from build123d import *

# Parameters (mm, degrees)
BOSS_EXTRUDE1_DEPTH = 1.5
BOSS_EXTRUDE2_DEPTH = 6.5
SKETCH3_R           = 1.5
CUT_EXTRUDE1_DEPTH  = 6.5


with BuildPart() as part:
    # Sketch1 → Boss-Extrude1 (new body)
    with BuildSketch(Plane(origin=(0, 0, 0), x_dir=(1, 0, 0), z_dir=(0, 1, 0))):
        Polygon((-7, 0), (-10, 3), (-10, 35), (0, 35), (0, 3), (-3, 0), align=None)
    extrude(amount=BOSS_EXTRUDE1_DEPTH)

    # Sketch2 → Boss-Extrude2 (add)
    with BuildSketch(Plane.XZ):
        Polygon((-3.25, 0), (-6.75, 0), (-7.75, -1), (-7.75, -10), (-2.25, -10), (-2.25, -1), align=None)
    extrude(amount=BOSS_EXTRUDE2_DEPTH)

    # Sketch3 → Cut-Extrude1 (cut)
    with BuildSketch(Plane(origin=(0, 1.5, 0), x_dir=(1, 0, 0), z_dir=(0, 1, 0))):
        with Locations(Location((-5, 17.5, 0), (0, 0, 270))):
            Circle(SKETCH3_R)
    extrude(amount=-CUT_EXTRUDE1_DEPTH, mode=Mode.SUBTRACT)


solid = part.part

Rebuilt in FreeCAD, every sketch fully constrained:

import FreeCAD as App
import Part
import Sketcher
from FreeCAD import Vector
Q = App.Units.Quantity

doc = App.newDocument("Part")
params = doc.addObject("Spreadsheet::Sheet", "Params")
for row, (alias, value) in enumerate([
    ("sketch1_width", "4 mm"),
    ("sketch1_width2", "10 mm"),
    ("sketch1_height", "32 mm"),
    ("pad1_length", "1.5 mm"),
    ("sketch2_height", "9 mm"),
    ("sketch2_width", "3.5 mm"),
    ("sketch2_width2", "5.5 mm"),
    ("pad2_length", "6.5 mm"),
    ("sketch3_diameter", "3 mm"),
    ("pocket1_length", "6.5 mm"),
], start=1):
    params.set(f"A{row}", alias)
    params.set(f"B{row}", "=" + value)
    params.setAlias(f"B{row}", alias)

body = doc.addObject("PartDesign::Body", "Body")

sketch1 = body.newObject("Sketcher::SketchObject", "Sketch")
sketch1.AttachmentSupport = (doc.getObject("XZ_Plane"), [""])
sketch1.MapMode = "FlatFace"
sketch1.addGeometry([
    Part.LineSegment(Vector(-10, -3, 0), Vector(-7, 0, 0)),
    Part.LineSegment(Vector(-7, 0, 0), Vector(-3, 0, 0)),
    Part.LineSegment(Vector(-3, 0, 0), Vector(0, -3, 0)),
    Part.LineSegment(Vector(0, -3, 0), Vector(0, -35, 0)),
    Part.LineSegment(Vector(0, -35, 0), Vector(-10, -35, 0)),
    Part.LineSegment(Vector(-10, -35, 0), Vector(-10, -3, 0)),
], False)
sketch1.addConstraint([
    Sketcher.Constraint("Coincident", 0, 2, 1, 1),
    Sketcher.Constraint("Coincident", 1, 2, 2, 1),
    Sketcher.Constraint("Coincident", 2, 2, 3, 1),
    Sketcher.Constraint("Coincident", 3, 2, 4, 1),
    Sketcher.Constraint("Coincident", 4, 2, 5, 1),
    Sketcher.Constraint("Coincident", 5, 2, 0, 1),
    Sketcher.Constraint("Horizontal", 1),
    Sketcher.Constraint("Vertical", 3),
    Sketcher.Constraint("Horizontal", 4),
    Sketcher.Constraint("Vertical", 5),
    Sketcher.Constraint("PointOnObject", 0, 2, -1),
    Sketcher.Constraint("PointOnObject", 2, 2, -2),
    Sketcher.Constraint("Perpendicular", 0, 2),
    Sketcher.Constraint("Horizontal", 2, 2, 5, 2),
    Sketcher.Constraint("Equal", 0, 2),
    Sketcher.Constraint("DistanceX", 1, 1, 1, 2, Q("4 mm")),
    Sketcher.Constraint("DistanceX", 4, 2, 4, 1, Q("10 mm")),
    Sketcher.Constraint("DistanceY", 3, 2, 3, 1, Q("32 mm")),
])
sketch1.setExpression("Constraints[15]", "Params.sketch1_width")
sketch1.setExpression("Constraints[16]", "Params.sketch1_width2")
sketch1.setExpression("Constraints[17]", "Params.sketch1_height")
pad1 = body.newObject("PartDesign::Pad", "Pad")
pad1.Profile = sketch1
pad1.setExpression("Length", "Params.pad1_length")
pad1.Reversed = True

sketch2 = body.newObject("Sketcher::SketchObject", "Sketch001")
sketch2.AttachmentSupport = (doc.getObject("XZ_Plane"), [""])
sketch2.MapMode = "FlatFace"
sketch2.addGeometry([
    Part.LineSegment(Vector(-3.25, 0, 0), Vector(-6.75, 0, 0)),
    Part.LineSegment(Vector(-6.75, 0, 0), Vector(-7.75, -1, 0)),
    Part.LineSegment(Vector(-7.75, -1, 0), Vector(-7.75, -10, 0)),
    Part.LineSegment(Vector(-7.75, -10, 0), Vector(-2.25, -10, 0)),
    Part.LineSegment(Vector(-2.25, -10, 0), Vector(-2.25, -1, 0)),
    Part.LineSegment(Vector(-2.25, -1, 0), Vector(-3.25, 0, 0)),
], False)
sketch2.addConstraint([
    Sketcher.Constraint("Coincident", 0, 2, 1, 1),
    Sketcher.Constraint("Coincident", 1, 2, 2, 1),
    Sketcher.Constraint("Coincident", 2, 2, 3, 1),
    Sketcher.Constraint("Coincident", 3, 2, 4, 1),
    Sketcher.Constraint("Coincident", 4, 2, 5, 1),
    Sketcher.Constraint("Coincident", 5, 2, 0, 1),
    Sketcher.Constraint("Horizontal", 0),
    Sketcher.Constraint("Vertical", 2),
    Sketcher.Constraint("Horizontal", 3),
    Sketcher.Constraint("Vertical", 4),
    Sketcher.Constraint("PointOnObject", 0, 2, -1),
    Sketcher.Constraint("Perpendicular", 1, 5),
    Sketcher.Constraint("Horizontal", 1, 2, 4, 2),
    Sketcher.Constraint("Equal", 1, 5),
    Sketcher.Constraint("DistanceY", 2, 2, 2, 1, Q("9 mm")),
    Sketcher.Constraint("DistanceX", 0, 2, 0, 1, Q("3.5 mm")),
    Sketcher.Constraint("DistanceX", 3, 1, 3, 2, Q("5.5 mm")),
    Sketcher.Constraint("DistanceX", 0, 2, -1, 1, Q("6.75 mm")),
])
sketch2.setExpression("Constraints[14]", "Params.sketch2_height")
sketch2.setExpression("Constraints[15]", "Params.sketch2_width")
sketch2.setExpression("Constraints[16]", "Params.sketch2_width2")
pad2 = body.newObject("PartDesign::Pad", "Pad001")
pad2.Profile = sketch2
pad2.setExpression("Length", "Params.pad2_length")

sketch3 = body.newObject("Sketcher::SketchObject", "Sketch002")
sketch3.AttachmentSupport = (doc.getObject("XZ_Plane"), [""])
sketch3.MapMode = "FlatFace"
sketch3.AttachmentOffset = App.Placement(Vector(0, 0, -1.5), App.Rotation())
sketch3.addGeometry(Part.Circle(Vector(-5, -17.5, 0), Vector(0, 0, 1), 1.5), False)
sketch3.addConstraint([
    Sketcher.Constraint("Diameter", 0, Q("3 mm")),
    Sketcher.Constraint("DistanceX", 0, 3, -1, 1, Q("5 mm")),
    Sketcher.Constraint("DistanceY", 0, 3, -1, 1, Q("17.5 mm")),
])
sketch3.setExpression("Constraints[0]", "Params.sketch3_diameter")
pocket1 = body.newObject("PartDesign::Pocket", "Pocket")
pocket1.Profile = sketch3
pocket1.setExpression("Length", "Params.pocket1_length")
pocket1.Reversed = True

doc.recompute()
